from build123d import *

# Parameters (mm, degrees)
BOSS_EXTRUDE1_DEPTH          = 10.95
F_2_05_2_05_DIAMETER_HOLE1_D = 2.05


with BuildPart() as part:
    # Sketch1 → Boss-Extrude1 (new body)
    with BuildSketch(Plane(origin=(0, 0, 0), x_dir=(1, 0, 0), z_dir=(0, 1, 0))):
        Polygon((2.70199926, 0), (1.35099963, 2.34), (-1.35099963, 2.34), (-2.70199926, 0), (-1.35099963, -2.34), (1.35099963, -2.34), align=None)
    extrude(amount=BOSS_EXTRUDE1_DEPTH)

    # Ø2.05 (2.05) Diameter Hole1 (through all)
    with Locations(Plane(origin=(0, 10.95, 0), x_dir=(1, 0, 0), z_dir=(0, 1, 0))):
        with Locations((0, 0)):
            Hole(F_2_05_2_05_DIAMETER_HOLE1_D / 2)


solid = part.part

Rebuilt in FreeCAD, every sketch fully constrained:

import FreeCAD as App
import Part
import Sketcher
from FreeCAD import Vector
Q = App.Units.Quantity


def add_polygon(sketch, points):
    """Adds a closed chain of lines whose ends are joined by coincident constraints."""
    first, n = sketch.GeometryCount, len(points)
    for a, b in zip(points, points[1:] + points[:1]):
        sketch.addGeometry(Part.LineSegment(App.Vector(*a, 0), App.Vector(*b, 0)), False)
    for i in range(n):
        sketch.addConstraint(Sketcher.Constraint("Coincident", first + i, 2, first + (i + 1) % n, 1))

doc = App.newDocument("Part")
body = doc.addObject("PartDesign::Body", "Body")

# Sketch on XZ plane
sketch1 = body.newObject("Sketcher::SketchObject", "Sketch")
sketch1.AttachmentSupport = (doc.getObject("XZ_Plane"), [""])
sketch1.MapMode = "FlatFace"
add_polygon(sketch1, [(2.7, 0), (1.4, -2.3), (-1.4, -2.3), (-2.7, 0), (-1.4, 2.3), (1.4, 2.3)])  # lines 0-5
sketch1.addConstraint(Sketcher.Constraint("Horizontal", 1))
sketch1.addConstraint(Sketcher.Constraint("Horizontal", 4))
sketch1.addConstraint(Sketcher.Constraint("Symmetric", 0, 2, 3, 2, -1, 1))
sketch1.addConstraint(Sketcher.Constraint("Symmetric", 2, 2, 5, 2, -1, 1))
sketch1.addConstraint(Sketcher.Constraint("PointOnObject", 2, 2, -1))
sketch1.addConstraint(Sketcher.Constraint("Parallel", 2, 5))
sketch1.addConstraint(Sketcher.Constraint("Vertical", 1, 2, 3, 2))
sketch1.addConstraint(Sketcher.Constraint("Angle", 0, Q("-120 deg")))
sketch1.addConstraint(Sketcher.Constraint("DistanceX", 1, 2, 1, 1, Q("2.701999 mm")))
sketch1.addConstraint(Sketcher.Constraint("DistanceY", 0, 2, -1, 1, Q("2.34 mm")))
pad1 = body.newObject("PartDesign::Pad", "Pad")
pad1.Profile = sketch1
pad1.Length = 10.95
pad1.Reversed = True

# Sketch on XZ plane
sketch2 = body.newObject("Sketcher::SketchObject", "Sketch001")
sketch2.AttachmentSupport = (doc.getObject("XZ_Plane"), [""])
sketch2.MapMode = "FlatFace"
sketch2.AttachmentOffset = App.Placement(Vector(0, 0, -10.95), App.Rotation())
sketch2.addGeometry(Part.Circle(Vector(0, 0, 0), Vector(0, 0, 1), 1), False)
sketch2.addConstraint(Sketcher.Constraint("Coincident", 0, 3, -1, 1))
sketch2.addConstraint(Sketcher.Constraint("Diameter", 0, Q("2.05 mm")))
doc.recompute()
hole = body.newObject("PartDesign::Hole", "Hole")
hole.Profile = sketch2
hole.ThreadType = "None"
hole.Diameter = 2.05
hole.DepthType = "ThroughAll"
hole.Reversed = True

doc.recompute()
